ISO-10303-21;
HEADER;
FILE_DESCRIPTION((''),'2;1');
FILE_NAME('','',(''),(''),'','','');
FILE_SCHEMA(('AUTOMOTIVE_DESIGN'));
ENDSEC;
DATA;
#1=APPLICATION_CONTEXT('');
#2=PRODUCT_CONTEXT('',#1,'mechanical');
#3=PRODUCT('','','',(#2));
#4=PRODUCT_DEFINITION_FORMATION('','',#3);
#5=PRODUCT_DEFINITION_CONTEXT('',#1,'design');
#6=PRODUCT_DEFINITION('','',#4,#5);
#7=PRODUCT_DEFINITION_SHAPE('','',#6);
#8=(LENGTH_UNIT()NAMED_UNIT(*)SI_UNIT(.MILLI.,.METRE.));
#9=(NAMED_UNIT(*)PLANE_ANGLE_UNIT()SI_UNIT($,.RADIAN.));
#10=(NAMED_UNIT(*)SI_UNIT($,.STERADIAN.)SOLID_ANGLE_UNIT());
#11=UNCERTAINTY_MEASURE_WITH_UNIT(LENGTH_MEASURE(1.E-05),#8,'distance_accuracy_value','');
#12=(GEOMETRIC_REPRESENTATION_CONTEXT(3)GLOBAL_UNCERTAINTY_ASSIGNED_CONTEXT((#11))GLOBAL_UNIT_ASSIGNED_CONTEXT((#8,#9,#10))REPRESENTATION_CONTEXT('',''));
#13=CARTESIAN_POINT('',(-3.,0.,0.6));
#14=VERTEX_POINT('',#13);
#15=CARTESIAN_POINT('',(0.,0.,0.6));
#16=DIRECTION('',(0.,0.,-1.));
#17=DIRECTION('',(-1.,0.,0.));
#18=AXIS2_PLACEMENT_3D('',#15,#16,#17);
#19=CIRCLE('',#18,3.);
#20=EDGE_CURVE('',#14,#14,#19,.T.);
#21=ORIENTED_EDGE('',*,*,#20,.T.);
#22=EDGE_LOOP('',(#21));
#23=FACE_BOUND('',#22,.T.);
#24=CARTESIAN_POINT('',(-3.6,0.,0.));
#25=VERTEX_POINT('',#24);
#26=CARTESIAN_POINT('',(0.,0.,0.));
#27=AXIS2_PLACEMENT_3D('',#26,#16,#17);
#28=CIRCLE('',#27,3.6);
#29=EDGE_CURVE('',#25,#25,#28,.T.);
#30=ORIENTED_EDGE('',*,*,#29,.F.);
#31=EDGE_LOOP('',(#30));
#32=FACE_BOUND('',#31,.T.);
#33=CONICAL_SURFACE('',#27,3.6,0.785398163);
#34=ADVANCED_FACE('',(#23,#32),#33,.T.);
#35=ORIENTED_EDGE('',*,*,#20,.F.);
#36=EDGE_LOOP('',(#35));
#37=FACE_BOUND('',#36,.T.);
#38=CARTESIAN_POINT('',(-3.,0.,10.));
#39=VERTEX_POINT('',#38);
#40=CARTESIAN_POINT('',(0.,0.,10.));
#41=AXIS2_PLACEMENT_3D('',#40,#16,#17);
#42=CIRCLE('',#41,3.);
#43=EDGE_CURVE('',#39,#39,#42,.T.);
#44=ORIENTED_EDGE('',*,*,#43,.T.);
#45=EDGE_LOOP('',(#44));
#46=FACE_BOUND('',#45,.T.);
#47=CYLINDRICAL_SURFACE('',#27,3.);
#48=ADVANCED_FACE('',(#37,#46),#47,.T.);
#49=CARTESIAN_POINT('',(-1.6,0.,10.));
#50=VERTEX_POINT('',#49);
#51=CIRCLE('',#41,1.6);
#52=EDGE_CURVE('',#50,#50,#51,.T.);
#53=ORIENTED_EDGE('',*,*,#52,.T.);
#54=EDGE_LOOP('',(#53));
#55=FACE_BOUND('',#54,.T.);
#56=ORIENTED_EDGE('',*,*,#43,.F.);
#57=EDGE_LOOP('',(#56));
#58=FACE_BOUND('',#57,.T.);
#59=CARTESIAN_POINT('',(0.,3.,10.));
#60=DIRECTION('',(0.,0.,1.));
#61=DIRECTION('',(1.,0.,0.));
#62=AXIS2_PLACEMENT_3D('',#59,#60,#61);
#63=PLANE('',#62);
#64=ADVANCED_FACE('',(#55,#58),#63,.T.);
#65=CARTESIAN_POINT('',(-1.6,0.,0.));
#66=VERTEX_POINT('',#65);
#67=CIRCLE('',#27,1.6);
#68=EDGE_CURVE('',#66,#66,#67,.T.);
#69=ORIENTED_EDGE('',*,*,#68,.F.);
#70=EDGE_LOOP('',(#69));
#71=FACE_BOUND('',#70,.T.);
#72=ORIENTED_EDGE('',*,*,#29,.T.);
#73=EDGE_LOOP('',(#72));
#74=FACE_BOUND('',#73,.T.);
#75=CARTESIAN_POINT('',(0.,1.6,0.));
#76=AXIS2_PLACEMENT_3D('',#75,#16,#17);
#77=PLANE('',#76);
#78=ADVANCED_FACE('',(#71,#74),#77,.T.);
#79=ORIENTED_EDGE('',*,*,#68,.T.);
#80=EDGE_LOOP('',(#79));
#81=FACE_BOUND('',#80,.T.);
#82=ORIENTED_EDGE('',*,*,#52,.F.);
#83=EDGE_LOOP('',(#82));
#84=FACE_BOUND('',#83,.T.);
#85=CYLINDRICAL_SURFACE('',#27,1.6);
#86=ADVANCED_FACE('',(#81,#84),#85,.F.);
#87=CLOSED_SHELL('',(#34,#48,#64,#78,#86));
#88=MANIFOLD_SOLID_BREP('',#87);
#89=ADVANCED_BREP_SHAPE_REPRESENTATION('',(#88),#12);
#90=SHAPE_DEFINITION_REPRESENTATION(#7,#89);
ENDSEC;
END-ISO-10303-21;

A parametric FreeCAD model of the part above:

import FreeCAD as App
import Part
import Sketcher
Q = App.Units.Quantity


def add_polygon(sketch, points):
    """Adds a closed chain of lines whose ends are joined by coincident constraints."""
    first, n = sketch.GeometryCount, len(points)
    for a, b in zip(points, points[1:] + points[:1]):
        sketch.addGeometry(Part.LineSegment(App.Vector(*a, 0), App.Vector(*b, 0)), False)
    for i in range(n):
        sketch.addConstraint(Sketcher.Constraint("Coincident", first + i, 2, first + (i + 1) % n, 1))

doc = App.newDocument("Part")
params = doc.addObject("Spreadsheet::Sheet", "Params")
for row, (alias, value) in enumerate([
    ("sketch1_width", "2 mm"),
    ("sketch1_height", "10 mm"),
    ("sketch1_width2", "1.4 mm"),
    ("revolution_angle", "360 deg"),
], start=1):
    params.set(f"A{row}", alias)
    params.set(f"B{row}", "=" + value)
    params.setAlias(f"B{row}", alias)

body = doc.addObject("PartDesign::Body", "Body")

# Sketch on YZ plane
sketch1 = body.newObject("Sketcher::SketchObject", "Sketch")
sketch1.AttachmentSupport = (doc.getObject("YZ_Plane"), [""])
sketch1.MapMode = "FlatFace"
add_polygon(sketch1, [(1.6, 10), (1.6, 0), (3.6, 0), (3, 0.6), (3, 10)])  # lines 0-4
sketch1.addConstraint([
    Sketcher.Constraint("Vertical", 0),
    Sketcher.Constraint("Horizontal", 1),
    Sketcher.Constraint("Vertical", 3),
    Sketcher.Constraint("Horizontal", 4),
    Sketcher.Constraint("PointOnObject", 0, 2, -1),
    Sketcher.Constraint("DistanceX", 1, 1, 1, 2, 2.0),
    Sketcher.Constraint("DistanceY", 0, 2, 0, 1, 10.0),
    Sketcher.Constraint("Angle", 2, Q("135 deg")),
    Sketcher.Constraint("DistanceX", 4, 2, 4, 1, 1.4),
    Sketcher.Constraint("DistanceX", -1, 1, 2, 2, 3.0),
])
sketch1.setExpression("Constraints[10]", "Params.sketch1_width")
sketch1.setExpression("Constraints[11]", "Params.sketch1_height")
sketch1.setExpression("Constraints[13]", "Params.sketch1_width2")
revolution = body.newObject("PartDesign::Revolution", "Revolution")
revolution.Profile = sketch1
revolution.ReferenceAxis = (sketch1, ["V_Axis"])
revolution.setExpression("Angle", "Params.revolution_angle")

doc.recompute()
